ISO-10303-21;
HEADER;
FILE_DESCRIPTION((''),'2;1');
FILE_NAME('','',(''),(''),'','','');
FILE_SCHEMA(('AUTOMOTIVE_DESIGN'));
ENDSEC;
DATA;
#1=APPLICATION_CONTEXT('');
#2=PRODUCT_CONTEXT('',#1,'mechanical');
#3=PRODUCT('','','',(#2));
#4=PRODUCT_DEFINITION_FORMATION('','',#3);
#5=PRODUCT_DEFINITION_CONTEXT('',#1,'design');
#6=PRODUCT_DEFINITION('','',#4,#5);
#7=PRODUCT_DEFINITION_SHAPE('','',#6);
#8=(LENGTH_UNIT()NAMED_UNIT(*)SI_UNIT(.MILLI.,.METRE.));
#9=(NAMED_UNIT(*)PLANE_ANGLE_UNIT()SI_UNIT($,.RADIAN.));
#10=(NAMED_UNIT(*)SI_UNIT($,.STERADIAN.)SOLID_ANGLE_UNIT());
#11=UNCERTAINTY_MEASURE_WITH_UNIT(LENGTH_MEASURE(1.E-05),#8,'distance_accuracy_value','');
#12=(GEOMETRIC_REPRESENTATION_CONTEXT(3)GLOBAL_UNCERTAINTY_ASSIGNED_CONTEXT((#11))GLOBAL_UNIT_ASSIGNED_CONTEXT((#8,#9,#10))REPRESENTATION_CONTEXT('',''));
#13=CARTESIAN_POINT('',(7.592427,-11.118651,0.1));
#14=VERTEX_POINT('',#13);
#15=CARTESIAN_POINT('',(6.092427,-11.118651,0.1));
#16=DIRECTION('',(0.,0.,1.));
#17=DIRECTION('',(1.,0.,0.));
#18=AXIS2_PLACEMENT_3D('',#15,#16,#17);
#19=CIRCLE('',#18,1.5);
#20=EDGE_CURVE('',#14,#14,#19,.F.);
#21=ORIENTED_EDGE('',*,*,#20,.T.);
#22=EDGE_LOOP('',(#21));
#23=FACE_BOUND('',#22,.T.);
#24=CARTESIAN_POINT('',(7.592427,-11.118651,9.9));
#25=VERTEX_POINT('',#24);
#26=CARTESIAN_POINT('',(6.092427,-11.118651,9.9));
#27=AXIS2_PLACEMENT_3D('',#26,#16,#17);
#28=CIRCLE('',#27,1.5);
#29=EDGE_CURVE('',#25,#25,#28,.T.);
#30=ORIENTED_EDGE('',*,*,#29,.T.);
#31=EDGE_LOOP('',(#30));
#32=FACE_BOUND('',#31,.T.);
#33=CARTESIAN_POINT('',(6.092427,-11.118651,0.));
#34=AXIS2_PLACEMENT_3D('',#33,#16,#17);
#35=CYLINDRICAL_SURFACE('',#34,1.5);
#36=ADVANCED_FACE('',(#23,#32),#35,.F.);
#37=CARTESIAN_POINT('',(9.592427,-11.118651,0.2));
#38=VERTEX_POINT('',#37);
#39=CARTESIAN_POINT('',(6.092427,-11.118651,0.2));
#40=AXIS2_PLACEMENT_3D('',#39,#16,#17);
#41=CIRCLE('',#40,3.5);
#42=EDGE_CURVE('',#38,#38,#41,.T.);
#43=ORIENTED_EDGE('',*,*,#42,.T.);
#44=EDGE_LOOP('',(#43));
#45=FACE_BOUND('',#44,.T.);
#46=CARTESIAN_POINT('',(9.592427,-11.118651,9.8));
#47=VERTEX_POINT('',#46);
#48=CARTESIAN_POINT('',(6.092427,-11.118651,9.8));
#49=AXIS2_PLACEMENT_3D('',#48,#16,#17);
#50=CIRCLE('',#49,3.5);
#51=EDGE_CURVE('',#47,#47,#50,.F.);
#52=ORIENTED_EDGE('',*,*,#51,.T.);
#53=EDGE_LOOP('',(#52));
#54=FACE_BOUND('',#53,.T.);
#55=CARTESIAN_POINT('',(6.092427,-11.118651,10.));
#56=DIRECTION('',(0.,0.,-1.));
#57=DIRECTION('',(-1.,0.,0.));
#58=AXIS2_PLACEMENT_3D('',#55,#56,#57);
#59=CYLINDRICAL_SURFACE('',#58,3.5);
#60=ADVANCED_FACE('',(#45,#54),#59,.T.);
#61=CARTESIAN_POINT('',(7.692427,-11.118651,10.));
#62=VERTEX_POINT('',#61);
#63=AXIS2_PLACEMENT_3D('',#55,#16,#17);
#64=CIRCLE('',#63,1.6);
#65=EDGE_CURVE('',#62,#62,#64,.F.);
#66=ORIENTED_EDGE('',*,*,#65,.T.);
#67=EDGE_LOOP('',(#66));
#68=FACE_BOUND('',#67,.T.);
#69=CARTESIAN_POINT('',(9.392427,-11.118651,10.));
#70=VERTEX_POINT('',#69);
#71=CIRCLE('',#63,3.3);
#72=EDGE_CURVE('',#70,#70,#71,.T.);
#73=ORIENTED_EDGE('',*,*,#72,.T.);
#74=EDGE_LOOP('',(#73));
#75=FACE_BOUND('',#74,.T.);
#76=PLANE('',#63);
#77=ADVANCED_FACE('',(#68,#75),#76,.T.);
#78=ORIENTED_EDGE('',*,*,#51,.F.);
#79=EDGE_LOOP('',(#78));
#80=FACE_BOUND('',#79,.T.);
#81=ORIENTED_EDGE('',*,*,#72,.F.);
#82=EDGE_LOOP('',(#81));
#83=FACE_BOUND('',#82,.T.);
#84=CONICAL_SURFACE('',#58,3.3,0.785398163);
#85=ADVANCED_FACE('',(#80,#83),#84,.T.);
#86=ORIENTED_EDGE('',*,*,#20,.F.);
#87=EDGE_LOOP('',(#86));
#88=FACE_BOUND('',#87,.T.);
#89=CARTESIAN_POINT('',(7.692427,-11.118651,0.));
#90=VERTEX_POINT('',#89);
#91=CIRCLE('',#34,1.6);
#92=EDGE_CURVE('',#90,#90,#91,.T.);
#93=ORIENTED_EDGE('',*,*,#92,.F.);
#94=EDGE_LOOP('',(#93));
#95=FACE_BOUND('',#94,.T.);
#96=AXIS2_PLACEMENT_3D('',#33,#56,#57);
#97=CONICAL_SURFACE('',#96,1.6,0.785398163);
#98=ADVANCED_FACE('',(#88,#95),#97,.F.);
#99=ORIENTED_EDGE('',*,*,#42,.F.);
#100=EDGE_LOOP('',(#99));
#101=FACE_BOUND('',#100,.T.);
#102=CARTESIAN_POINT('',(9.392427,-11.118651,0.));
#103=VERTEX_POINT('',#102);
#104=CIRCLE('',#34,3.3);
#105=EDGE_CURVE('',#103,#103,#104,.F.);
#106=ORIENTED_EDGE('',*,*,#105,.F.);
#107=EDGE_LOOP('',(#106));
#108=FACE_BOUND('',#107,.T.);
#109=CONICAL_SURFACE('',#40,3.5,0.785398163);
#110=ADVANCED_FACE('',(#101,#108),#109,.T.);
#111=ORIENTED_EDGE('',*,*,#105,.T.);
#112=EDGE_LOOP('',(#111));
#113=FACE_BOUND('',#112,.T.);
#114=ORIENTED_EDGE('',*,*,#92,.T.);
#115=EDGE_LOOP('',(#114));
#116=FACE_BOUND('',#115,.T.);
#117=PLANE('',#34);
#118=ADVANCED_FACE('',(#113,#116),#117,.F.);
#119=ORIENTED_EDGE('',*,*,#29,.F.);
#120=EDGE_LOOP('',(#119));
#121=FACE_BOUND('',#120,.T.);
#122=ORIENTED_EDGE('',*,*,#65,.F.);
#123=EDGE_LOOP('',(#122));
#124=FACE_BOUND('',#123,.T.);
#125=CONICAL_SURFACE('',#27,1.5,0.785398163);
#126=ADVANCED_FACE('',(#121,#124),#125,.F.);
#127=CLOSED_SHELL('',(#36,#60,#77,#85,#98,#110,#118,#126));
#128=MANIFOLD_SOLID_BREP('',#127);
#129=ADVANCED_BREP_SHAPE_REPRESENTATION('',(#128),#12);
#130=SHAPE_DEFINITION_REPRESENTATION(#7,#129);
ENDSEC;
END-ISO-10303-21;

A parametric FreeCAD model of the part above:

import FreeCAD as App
import Part
import Sketcher

V = App.Vector
Q = App.Units.Quantity


def edges_at(feature, points):
    """Names of the edges that pass closest to the given points."""
    edges = feature.Shape.Edges
    near = lambda p: min(range(len(edges)), key=lambda i: edges[i].distToShape(Part.Vertex(*p))[0])
    return sorted({f"Edge{near(p) + 1}" for p in points})

doc = App.newDocument("Part")
body = doc.addObject("PartDesign::Body", "Body")

# Sketch on XY plane
sketch1 = body.newObject("Sketcher::SketchObject", "Sketch")
sketch1.AttachmentSupport = (doc.getObject("XY_Plane"), [""])
sketch1.MapMode = "FlatFace"
sketch1.addGeometry(Part.Circle(V(6.092427, -11.118651, 0), V(0, 0, 1), 3.5), False)
sketch1.addConstraint([
    Sketcher.Constraint("Diameter", 0, Q("7 mm")),
    Sketcher.Constraint("DistanceY", 0, 3, -1, 1, Q("11.118651 mm")),
    Sketcher.Constraint("DistanceX", -1, 1, 0, 3, Q("6.092427 mm")),
])
pad1 = body.newObject("PartDesign::Pad", "Pad")
pad1.Profile = sketch1
pad1.Length = 10

# Sketch on XY plane
sketch2 = body.newObject("Sketcher::SketchObject", "Sketch001")
sketch2.AttachmentSupport = (doc.getObject("XY_Plane"), [""])
sketch2.MapMode = "FlatFace"
sketch2.AttachmentOffset = App.Placement(V(0, 0, 10), App.Rotation())
sketch2.addGeometry(Part.Circle(V(6.092427, -11.118651, 0), V(0, 0, 1), 1.5), False)
sketch2.addConstraint([
    Sketcher.Constraint("Diameter", 0, Q("3 mm")),
    Sketcher.Constraint("DistanceY", 0, 3, -1, 1, Q("11.118651 mm")),
    Sketcher.Constraint("DistanceX", -1, 1, 0, 3, Q("6.092427 mm")),
])
pocket1 = body.newObject("PartDesign::Pocket", "Pocket")
pocket1.Profile = sketch2
pocket1.Length = 10
doc.recompute()

chamfer = body.newObject("PartDesign::Chamfer", "Chamfer")
chamfer.Base = (pocket1, edges_at(pocket1, [(2.592, -11.119, 0), (2.592, -11.119, 10)]))
chamfer.Size = 0.2
doc.recompute()

chamfer2 = body.newObject("PartDesign::Chamfer", "Chamfer001")
chamfer2.Base = (chamfer, edges_at(chamfer, [(4.592, -11.119, 0), (4.592, -11.119, 10)]))
chamfer2.Size = 0.1

doc.recompute()
